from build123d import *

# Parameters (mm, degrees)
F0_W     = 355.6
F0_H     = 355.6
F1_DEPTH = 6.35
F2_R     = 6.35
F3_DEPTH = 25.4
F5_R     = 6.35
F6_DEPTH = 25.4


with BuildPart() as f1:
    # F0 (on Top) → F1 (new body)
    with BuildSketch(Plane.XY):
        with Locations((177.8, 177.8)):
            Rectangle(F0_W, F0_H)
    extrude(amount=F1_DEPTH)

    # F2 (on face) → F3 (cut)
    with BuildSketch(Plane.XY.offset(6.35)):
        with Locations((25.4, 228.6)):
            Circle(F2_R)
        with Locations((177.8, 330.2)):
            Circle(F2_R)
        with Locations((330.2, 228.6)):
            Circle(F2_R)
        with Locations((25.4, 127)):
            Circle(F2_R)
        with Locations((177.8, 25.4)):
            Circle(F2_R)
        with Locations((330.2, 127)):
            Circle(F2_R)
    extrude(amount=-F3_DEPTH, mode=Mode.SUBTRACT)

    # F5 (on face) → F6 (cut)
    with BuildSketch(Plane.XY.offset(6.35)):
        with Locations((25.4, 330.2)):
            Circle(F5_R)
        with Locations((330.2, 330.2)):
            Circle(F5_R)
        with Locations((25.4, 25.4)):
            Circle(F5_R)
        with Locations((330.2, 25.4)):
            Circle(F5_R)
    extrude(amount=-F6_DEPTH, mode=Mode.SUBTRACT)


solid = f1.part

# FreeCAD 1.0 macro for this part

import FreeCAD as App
import Part
import Sketcher
from FreeCAD import Vector
Q = App.Units.Quantity

doc = App.newDocument("Part")
body = doc.addObject("PartDesign::Body", "Body")

sketch1 = doc.addObject("Sketcher::SketchObject", "Sketch")
body.addObject(sketch1)
sketch1.AttachmentSupport = (doc.XY_Plane, [""])
sketch1.MapMode = "FlatFace"
sketch1.addGeometry([
    Part.LineSegment(Vector(0, 356, 0), Vector(0, 0, 0)),
    Part.LineSegment(Vector(0, 0, 0), Vector(356, 0, 0)),
    Part.LineSegment(Vector(356, 0, 0), Vector(356, 356, 0)),
    Part.LineSegment(Vector(356, 356, 0), Vector(0, 356, 0)),
], False)
sketch1.addConstraint([
    Sketcher.Constraint("Coincident", 0, 2, 1, 1),
    Sketcher.Constraint("Coincident", 1, 2, 2, 1),
    Sketcher.Constraint("Coincident", 2, 2, 3, 1),
    Sketcher.Constraint("Coincident", 3, 2, 0, 1),
    Sketcher.Constraint("Vertical", 0),
    Sketcher.Constraint("Horizontal", 1),
    Sketcher.Constraint("Vertical", 2),
    Sketcher.Constraint("Horizontal", 3),
    Sketcher.Constraint("Coincident", 0, 2, -1, 1),
    Sketcher.Constraint("Equal", 3, 0),
    Sketcher.Constraint("DistanceX", 1, 1, 1, 2, Q("14 in")),
])
pad1 = doc.addObject("PartDesign::Pad", "Pad")
body.addObject(pad1)
pad1.Profile = sketch1
pad1.Length = Q("0.25 in")

sketch2 = doc.addObject("Sketcher::SketchObject", "Sketch001")
body.addObject(sketch2)
sketch2.AttachmentSupport = (doc.XY_Plane, [""])
sketch2.MapMode = "FlatFace"
sketch2.AttachmentOffset = App.Placement(Vector(0, 0, 0.25 * 25.4), App.Rotation())
sketch2.addGeometry([
    Part.Circle(Vector(25, 229, 0), Vector(0, 0, 1), 6),
    Part.Circle(Vector(178, 330, 0), Vector(0, 0, 1), 6),
    Part.Circle(Vector(330, 229, 0), Vector(0, 0, 1), 6),
    Part.Circle(Vector(25, 127, 0), Vector(0, 0, 1), 6),
    Part.Circle(Vector(178, 25, 0), Vector(0, 0, 1), 6),
    Part.Circle(Vector(330, 127, 0), Vector(0, 0, 1), 6),
], False)
sketch2.addConstraint([
    Sketcher.Constraint("Equal", 0, 1),
    Sketcher.Constraint("Equal", 1, 2),
    Sketcher.Constraint("Equal", 2, 3),
    Sketcher.Constraint("Equal", 3, 4),
    Sketcher.Constraint("Equal", 4, 5),
    Sketcher.Constraint("Horizontal", 0, 3, 2, 3),
    Sketcher.Constraint("Horizontal", 3, 3, 5, 3),
    Sketcher.Constraint("Vertical", 0, 3, 3, 3),
    Sketcher.Constraint("Vertical", 1, 3, 4, 3),
    Sketcher.Constraint("Vertical", 2, 3, 5, 3),
    Sketcher.Constraint("Diameter", 0, Q("0.5 in")),
    Sketcher.Constraint("DistanceX", -1, 1, 0, 3, Q("1 in")),
    Sketcher.Constraint("DistanceY", -1, 1, 0, 3, Q("9 in")),
    Sketcher.Constraint("DistanceX", -1, 1, 1, 3, Q("7 in")),
    Sketcher.Constraint("DistanceY", -1, 1, 1, 3, Q("13 in")),
    Sketcher.Constraint("DistanceX", -1, 1, 2, 3, Q("13 in")),
    Sketcher.Constraint("DistanceY", -1, 1, 3, 3, Q("5 in")),
    Sketcher.Constraint("DistanceY", -1, 1, 4, 3, Q("1 in")),
])
pocket1 = doc.addObject("PartDesign::Pocket", "Pocket")
body.addObject(pocket1)
pocket1.Profile = sketch2
pocket1.Length = Q("1 in")

sketch3 = doc.addObject("Sketcher::SketchObject", "Sketch002")
body.addObject(sketch3)
sketch3.AttachmentSupport = (doc.XY_Plane, [""])
sketch3.MapMode = "FlatFace"
sketch3.AttachmentOffset = App.Placement(Vector(0, 0, 0.25 * 25.4), App.Rotation())
sketch3.addGeometry([
    Part.Circle(Vector(25, 330, 0), Vector(0, 0, 1), 6),
    Part.Circle(Vector(330, 330, 0), Vector(0, 0, 1), 6),
    Part.Circle(Vector(25, 25, 0), Vector(0, 0, 1), 6),
    Part.Circle(Vector(330, 25, 0), Vector(0, 0, 1), 6),
], False)
sketch3.addConstraint([
    Sketcher.Constraint("Equal", 0, 1),
    Sketcher.Constraint("Equal", 1, 2),
    Sketcher.Constraint("Equal", 2, 3),
    Sketcher.Constraint("Horizontal", 0, 3, 1, 3),
    Sketcher.Constraint("Horizontal", 2, 3, 3, 3),
    Sketcher.Constraint("Vertical", 0, 3, 2, 3),
    Sketcher.Constraint("Vertical", 1, 3, 3, 3),
    Sketcher.Constraint("Diameter", 0, Q("0.5 in")),
    Sketcher.Constraint("DistanceX", -1, 1, 0, 3, Q("1 in")),
    Sketcher.Constraint("DistanceY", -1, 1, 0, 3, Q("13 in")),
    Sketcher.Constraint("DistanceX", -1, 1, 1, 3, Q("13 in")),
    Sketcher.Constraint("DistanceY", -1, 1, 2, 3, Q("1 in")),
])
pocket2 = doc.addObject("PartDesign::Pocket", "Pocket001")
body.addObject(pocket2)
pocket2.Profile = sketch3
pocket2.Length = Q("1 in")

doc.recompute()
